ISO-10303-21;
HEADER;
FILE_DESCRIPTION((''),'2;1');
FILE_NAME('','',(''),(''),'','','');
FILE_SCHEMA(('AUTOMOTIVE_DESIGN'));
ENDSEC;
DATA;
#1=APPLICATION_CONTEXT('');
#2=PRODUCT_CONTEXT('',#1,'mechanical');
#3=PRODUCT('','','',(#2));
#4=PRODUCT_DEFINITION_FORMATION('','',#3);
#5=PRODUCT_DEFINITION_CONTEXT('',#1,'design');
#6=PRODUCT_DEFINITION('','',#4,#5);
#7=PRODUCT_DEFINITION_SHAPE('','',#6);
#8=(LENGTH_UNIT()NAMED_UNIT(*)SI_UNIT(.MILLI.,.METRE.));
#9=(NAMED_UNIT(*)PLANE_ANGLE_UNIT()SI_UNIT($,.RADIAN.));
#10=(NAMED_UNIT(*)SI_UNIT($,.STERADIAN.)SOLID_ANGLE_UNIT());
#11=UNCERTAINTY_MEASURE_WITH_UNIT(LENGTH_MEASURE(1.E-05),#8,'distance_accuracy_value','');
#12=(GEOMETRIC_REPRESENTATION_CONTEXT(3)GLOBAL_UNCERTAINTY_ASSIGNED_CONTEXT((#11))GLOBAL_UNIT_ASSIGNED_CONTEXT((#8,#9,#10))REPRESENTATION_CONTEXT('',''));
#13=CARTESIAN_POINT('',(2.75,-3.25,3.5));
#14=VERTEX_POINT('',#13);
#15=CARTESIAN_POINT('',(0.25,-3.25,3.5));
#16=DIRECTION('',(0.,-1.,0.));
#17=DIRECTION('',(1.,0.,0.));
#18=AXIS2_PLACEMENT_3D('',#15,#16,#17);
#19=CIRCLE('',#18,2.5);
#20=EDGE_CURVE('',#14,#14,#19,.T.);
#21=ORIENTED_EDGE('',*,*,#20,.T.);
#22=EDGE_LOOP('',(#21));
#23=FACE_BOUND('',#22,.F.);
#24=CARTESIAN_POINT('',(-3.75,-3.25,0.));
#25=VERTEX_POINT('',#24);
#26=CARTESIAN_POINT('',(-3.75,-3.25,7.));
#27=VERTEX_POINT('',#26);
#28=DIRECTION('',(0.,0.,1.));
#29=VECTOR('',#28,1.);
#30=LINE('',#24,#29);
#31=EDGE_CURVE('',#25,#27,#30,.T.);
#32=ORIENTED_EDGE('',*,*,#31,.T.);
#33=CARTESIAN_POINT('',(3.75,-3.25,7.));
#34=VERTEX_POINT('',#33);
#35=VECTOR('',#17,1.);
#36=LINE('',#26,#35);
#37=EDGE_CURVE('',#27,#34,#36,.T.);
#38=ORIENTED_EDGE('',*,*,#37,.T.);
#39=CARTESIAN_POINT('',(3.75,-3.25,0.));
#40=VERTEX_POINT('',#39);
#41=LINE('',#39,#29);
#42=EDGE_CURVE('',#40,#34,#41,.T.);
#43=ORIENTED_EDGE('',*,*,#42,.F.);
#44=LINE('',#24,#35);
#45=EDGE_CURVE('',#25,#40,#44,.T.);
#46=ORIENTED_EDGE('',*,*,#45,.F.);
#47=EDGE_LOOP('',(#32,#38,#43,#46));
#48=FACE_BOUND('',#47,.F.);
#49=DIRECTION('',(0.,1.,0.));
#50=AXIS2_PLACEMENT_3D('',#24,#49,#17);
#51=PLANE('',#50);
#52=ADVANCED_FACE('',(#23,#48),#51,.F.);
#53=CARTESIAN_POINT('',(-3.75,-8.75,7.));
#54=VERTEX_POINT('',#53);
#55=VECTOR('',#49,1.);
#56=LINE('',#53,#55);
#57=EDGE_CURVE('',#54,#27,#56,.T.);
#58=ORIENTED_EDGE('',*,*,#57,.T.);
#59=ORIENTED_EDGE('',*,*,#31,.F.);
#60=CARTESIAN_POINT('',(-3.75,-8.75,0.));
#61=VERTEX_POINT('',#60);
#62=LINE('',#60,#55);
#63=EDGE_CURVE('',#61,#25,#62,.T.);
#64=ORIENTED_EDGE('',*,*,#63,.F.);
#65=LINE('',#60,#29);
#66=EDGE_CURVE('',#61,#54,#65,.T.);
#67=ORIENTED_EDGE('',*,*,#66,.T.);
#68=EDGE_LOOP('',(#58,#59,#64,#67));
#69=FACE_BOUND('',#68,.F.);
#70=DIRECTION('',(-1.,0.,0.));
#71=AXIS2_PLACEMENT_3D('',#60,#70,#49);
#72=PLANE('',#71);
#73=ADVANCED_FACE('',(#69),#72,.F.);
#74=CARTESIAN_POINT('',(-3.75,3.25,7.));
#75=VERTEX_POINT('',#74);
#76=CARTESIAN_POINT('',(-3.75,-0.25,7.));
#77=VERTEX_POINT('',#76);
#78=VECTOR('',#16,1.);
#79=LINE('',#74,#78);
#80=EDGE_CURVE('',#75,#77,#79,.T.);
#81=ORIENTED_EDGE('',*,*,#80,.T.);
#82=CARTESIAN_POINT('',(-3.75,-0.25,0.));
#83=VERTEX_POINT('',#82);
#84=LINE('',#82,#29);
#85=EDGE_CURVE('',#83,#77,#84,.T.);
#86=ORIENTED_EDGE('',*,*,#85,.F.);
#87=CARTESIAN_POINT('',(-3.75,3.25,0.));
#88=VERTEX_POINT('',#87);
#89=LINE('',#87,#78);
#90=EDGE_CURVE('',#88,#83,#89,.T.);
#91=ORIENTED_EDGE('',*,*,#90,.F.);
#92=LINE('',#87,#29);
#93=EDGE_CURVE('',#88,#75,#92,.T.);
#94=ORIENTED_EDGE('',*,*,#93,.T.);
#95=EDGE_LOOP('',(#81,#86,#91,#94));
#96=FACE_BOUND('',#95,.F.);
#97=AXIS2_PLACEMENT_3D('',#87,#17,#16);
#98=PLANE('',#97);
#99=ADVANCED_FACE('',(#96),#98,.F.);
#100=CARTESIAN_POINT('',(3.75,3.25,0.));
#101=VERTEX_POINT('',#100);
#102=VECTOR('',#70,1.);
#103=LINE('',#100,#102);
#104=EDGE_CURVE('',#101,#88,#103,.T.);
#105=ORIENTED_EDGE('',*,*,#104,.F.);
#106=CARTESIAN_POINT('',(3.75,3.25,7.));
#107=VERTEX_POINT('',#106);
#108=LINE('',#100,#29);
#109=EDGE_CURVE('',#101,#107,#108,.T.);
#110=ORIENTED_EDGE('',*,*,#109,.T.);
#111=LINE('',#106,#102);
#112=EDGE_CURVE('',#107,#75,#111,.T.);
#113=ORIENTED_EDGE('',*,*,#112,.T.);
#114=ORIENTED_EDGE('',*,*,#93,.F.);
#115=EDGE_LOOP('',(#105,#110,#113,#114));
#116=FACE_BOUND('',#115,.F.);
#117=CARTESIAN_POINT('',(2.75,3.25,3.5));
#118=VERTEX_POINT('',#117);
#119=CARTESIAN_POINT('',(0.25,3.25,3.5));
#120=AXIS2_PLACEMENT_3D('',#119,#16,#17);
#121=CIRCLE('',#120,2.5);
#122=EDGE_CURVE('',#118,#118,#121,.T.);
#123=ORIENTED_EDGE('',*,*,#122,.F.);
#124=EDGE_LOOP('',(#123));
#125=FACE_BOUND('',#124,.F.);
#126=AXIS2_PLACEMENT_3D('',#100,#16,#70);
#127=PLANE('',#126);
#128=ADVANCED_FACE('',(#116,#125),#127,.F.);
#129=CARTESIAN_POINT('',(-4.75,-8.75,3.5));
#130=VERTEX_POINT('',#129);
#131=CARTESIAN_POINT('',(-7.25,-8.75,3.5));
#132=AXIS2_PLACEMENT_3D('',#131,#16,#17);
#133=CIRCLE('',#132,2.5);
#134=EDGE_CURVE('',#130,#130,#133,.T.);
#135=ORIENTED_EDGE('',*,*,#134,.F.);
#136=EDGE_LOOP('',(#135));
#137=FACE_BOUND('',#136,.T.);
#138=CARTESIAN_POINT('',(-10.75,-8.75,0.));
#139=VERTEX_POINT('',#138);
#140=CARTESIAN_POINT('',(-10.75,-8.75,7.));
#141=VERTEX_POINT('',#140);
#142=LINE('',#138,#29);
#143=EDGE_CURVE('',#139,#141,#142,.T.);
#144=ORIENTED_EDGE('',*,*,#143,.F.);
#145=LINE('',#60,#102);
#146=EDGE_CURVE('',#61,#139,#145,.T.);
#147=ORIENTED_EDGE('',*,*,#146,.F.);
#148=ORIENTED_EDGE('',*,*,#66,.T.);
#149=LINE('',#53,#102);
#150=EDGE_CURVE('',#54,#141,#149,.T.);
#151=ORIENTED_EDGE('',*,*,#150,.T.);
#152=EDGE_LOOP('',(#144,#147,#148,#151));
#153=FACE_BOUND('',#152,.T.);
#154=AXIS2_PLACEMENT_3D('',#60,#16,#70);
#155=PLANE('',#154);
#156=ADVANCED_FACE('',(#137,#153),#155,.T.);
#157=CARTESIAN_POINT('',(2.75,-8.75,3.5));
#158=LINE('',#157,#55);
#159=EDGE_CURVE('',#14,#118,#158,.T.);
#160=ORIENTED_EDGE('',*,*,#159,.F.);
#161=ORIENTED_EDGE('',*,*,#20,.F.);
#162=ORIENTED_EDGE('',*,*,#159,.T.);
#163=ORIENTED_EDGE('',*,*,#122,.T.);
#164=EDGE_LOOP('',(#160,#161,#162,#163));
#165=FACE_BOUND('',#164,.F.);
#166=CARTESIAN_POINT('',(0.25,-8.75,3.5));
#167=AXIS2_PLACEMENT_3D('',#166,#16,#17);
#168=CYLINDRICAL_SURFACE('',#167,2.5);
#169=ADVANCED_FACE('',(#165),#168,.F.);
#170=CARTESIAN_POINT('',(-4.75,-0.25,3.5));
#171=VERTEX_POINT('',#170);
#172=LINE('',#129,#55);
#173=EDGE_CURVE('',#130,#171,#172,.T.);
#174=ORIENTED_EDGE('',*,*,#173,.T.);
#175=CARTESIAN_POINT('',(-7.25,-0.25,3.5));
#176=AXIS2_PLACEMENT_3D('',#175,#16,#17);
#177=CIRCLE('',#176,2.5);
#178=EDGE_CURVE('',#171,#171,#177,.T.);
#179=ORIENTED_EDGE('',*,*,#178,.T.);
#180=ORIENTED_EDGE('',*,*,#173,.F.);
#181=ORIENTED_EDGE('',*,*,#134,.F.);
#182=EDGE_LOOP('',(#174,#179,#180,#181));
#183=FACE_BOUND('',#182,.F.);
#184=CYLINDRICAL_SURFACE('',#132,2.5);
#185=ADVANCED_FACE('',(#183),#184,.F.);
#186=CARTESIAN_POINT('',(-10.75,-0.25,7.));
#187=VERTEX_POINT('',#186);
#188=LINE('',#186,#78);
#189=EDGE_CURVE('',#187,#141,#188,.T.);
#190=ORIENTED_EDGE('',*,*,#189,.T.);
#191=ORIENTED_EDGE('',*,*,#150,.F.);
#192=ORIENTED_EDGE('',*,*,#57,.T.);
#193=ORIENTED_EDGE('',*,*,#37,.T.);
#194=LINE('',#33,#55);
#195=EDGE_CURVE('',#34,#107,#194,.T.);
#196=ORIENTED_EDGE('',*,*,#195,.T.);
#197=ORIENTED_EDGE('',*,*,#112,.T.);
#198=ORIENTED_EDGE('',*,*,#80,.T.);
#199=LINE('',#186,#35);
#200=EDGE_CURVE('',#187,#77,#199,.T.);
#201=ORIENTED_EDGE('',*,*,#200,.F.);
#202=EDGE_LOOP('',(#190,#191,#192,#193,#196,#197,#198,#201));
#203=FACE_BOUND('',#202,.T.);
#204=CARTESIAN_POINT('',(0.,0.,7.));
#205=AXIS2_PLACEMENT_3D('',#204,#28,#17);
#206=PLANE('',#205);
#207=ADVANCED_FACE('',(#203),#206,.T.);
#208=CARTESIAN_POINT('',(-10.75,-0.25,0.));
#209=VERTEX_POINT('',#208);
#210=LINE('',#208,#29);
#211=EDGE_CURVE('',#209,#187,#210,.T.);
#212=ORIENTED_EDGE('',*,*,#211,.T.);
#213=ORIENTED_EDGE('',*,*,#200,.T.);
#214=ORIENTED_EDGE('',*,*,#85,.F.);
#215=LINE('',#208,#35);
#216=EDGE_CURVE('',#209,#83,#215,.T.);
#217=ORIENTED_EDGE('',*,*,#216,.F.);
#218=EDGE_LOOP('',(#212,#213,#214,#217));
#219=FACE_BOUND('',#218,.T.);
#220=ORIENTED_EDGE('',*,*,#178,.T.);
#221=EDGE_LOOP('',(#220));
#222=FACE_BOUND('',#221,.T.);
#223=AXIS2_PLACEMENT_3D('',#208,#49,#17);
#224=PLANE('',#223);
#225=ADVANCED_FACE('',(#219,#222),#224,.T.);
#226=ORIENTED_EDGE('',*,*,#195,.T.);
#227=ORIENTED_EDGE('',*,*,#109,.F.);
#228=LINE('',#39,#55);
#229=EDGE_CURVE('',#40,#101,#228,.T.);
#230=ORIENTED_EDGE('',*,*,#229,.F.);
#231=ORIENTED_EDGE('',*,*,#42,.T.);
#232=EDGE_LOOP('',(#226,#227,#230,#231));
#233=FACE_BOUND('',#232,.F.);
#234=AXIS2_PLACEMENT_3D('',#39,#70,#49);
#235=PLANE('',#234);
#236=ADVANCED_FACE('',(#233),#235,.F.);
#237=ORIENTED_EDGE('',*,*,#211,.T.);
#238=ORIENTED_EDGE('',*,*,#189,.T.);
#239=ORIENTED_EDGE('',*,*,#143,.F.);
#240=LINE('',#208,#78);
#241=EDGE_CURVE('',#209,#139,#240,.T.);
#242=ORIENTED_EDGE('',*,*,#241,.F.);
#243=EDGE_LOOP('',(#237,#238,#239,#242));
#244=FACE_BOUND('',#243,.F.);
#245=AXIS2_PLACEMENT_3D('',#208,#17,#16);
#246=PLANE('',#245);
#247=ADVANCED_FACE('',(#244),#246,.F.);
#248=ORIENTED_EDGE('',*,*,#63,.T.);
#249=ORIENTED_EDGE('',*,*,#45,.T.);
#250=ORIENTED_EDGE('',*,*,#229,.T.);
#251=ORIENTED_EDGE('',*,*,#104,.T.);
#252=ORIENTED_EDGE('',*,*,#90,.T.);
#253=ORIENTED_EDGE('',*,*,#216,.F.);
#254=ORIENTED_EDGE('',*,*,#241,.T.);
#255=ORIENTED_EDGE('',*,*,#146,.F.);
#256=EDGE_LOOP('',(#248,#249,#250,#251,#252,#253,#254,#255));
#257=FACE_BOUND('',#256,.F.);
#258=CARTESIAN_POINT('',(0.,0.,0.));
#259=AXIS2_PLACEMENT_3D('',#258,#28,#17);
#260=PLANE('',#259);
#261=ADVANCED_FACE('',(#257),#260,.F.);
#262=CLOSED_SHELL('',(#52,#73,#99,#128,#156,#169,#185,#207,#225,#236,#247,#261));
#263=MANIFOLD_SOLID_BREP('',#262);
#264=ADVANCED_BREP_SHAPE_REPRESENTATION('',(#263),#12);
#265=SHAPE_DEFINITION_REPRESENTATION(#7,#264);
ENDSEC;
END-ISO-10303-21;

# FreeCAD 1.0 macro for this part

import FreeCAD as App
import Part
import Sketcher


def add_polygon(sketch, points):
    """Adds a closed chain of lines whose ends are joined by coincident constraints."""
    first, n = sketch.GeometryCount, len(points)
    for a, b in zip(points, points[1:] + points[:1]):
        sketch.addGeometry(Part.LineSegment(App.Vector(*a, 0), App.Vector(*b, 0)), False)
    for i in range(n):
        sketch.addConstraint(Sketcher.Constraint("Coincident", first + i, 2, first + (i + 1) % n, 1))

doc = App.newDocument("Part")
body = doc.addObject("PartDesign::Body", "Body")

sketch1 = doc.addObject("Sketcher::SketchObject", "Sketch")
body.addObject(sketch1)
sketch1.AttachmentSupport = (doc.XY_Plane, [""])
sketch1.MapMode = "FlatFace"
add_polygon(sketch1, [(-3.8, -0.2), (-10.8, -0.2), (-10.8, -8.8), (-3.8, -8.8), (-3.8, -3.2), (3.8, -3.2), (3.8, 3.2), (-3.8, 3.2)])
sketch1.addConstraint(Sketcher.Constraint("Horizontal", 0))
sketch1.addConstraint(Sketcher.Constraint("Vertical", 1))
sketch1.addConstraint(Sketcher.Constraint("Horizontal", 2))
sketch1.addConstraint(Sketcher.Constraint("Vertical", 3))
sketch1.addConstraint(Sketcher.Constraint("Horizontal", 4))
sketch1.addConstraint(Sketcher.Constraint("Vertical", 5))
sketch1.addConstraint(Sketcher.Constraint("Horizontal", 6))
sketch1.addConstraint(Sketcher.Constraint("Vertical", 7))
sketch1.addConstraint(Sketcher.Constraint("Symmetric", 3, 2, 5, 2, -1, 1))
sketch1.addConstraint(Sketcher.Constraint("Vertical", 3, 2, 6, 2))
sketch1.addConstraint(Sketcher.Constraint("DistanceX", 0, 2, 0, 1, 7.0))
sketch1.addConstraint(Sketcher.Constraint("DistanceX", 4, 1, 4, 2, 7.5))
sketch1.addConstraint(Sketcher.Constraint("DistanceY", 1, 2, 1, 1, 8.5))
sketch1.addConstraint(Sketcher.Constraint("DistanceY", 3, 1, 3, 2, 5.5))
sketch1.addConstraint(Sketcher.Constraint("DistanceY", 5, 1, 5, 2, 6.5))
pad1 = doc.addObject("PartDesign::Pad", "Pad")
body.addObject(pad1)
pad1.Profile = sketch1
pad1.Length = 7

sketch2 = doc.addObject("Sketcher::SketchObject", "Sketch001")
body.addObject(sketch2)
sketch2.AttachmentSupport = (doc.XZ_Plane, [""])
sketch2.MapMode = "FlatFace"
sketch2.AttachmentOffset = App.Placement(App.Vector(0, 0, 8.75), App.Rotation())
sketch2.addGeometry(Part.Circle(App.Vector(-7.2, 3.5, 0), App.Vector(0, 0, 1), 2.5), False)
sketch2.addGeometry(Part.Circle(App.Vector(0.2, 3.5, 0), App.Vector(0, 0, 1), 2.5), False)
sketch2.addConstraint(Sketcher.Constraint("Equal", 0, 1))
sketch2.addConstraint(Sketcher.Constraint("Horizontal", 0, 3, 1, 3))
sketch2.addConstraint(Sketcher.Constraint("Diameter", 0, 5.0))
sketch2.addConstraint(Sketcher.Constraint("DistanceY", -1, 1, 0, 3, 3.5))
sketch2.addConstraint(Sketcher.Constraint("DistanceX", 0, 3, 1, 3, 7.5))
sketch2.addConstraint(Sketcher.Constraint("DistanceX", 0, 3, -1, 1, 7.25))
pocket1 = doc.addObject("PartDesign::Pocket", "Pocket")
body.addObject(pocket1)
pocket1.Profile = sketch2
pocket1.Length = 20

doc.recompute()
